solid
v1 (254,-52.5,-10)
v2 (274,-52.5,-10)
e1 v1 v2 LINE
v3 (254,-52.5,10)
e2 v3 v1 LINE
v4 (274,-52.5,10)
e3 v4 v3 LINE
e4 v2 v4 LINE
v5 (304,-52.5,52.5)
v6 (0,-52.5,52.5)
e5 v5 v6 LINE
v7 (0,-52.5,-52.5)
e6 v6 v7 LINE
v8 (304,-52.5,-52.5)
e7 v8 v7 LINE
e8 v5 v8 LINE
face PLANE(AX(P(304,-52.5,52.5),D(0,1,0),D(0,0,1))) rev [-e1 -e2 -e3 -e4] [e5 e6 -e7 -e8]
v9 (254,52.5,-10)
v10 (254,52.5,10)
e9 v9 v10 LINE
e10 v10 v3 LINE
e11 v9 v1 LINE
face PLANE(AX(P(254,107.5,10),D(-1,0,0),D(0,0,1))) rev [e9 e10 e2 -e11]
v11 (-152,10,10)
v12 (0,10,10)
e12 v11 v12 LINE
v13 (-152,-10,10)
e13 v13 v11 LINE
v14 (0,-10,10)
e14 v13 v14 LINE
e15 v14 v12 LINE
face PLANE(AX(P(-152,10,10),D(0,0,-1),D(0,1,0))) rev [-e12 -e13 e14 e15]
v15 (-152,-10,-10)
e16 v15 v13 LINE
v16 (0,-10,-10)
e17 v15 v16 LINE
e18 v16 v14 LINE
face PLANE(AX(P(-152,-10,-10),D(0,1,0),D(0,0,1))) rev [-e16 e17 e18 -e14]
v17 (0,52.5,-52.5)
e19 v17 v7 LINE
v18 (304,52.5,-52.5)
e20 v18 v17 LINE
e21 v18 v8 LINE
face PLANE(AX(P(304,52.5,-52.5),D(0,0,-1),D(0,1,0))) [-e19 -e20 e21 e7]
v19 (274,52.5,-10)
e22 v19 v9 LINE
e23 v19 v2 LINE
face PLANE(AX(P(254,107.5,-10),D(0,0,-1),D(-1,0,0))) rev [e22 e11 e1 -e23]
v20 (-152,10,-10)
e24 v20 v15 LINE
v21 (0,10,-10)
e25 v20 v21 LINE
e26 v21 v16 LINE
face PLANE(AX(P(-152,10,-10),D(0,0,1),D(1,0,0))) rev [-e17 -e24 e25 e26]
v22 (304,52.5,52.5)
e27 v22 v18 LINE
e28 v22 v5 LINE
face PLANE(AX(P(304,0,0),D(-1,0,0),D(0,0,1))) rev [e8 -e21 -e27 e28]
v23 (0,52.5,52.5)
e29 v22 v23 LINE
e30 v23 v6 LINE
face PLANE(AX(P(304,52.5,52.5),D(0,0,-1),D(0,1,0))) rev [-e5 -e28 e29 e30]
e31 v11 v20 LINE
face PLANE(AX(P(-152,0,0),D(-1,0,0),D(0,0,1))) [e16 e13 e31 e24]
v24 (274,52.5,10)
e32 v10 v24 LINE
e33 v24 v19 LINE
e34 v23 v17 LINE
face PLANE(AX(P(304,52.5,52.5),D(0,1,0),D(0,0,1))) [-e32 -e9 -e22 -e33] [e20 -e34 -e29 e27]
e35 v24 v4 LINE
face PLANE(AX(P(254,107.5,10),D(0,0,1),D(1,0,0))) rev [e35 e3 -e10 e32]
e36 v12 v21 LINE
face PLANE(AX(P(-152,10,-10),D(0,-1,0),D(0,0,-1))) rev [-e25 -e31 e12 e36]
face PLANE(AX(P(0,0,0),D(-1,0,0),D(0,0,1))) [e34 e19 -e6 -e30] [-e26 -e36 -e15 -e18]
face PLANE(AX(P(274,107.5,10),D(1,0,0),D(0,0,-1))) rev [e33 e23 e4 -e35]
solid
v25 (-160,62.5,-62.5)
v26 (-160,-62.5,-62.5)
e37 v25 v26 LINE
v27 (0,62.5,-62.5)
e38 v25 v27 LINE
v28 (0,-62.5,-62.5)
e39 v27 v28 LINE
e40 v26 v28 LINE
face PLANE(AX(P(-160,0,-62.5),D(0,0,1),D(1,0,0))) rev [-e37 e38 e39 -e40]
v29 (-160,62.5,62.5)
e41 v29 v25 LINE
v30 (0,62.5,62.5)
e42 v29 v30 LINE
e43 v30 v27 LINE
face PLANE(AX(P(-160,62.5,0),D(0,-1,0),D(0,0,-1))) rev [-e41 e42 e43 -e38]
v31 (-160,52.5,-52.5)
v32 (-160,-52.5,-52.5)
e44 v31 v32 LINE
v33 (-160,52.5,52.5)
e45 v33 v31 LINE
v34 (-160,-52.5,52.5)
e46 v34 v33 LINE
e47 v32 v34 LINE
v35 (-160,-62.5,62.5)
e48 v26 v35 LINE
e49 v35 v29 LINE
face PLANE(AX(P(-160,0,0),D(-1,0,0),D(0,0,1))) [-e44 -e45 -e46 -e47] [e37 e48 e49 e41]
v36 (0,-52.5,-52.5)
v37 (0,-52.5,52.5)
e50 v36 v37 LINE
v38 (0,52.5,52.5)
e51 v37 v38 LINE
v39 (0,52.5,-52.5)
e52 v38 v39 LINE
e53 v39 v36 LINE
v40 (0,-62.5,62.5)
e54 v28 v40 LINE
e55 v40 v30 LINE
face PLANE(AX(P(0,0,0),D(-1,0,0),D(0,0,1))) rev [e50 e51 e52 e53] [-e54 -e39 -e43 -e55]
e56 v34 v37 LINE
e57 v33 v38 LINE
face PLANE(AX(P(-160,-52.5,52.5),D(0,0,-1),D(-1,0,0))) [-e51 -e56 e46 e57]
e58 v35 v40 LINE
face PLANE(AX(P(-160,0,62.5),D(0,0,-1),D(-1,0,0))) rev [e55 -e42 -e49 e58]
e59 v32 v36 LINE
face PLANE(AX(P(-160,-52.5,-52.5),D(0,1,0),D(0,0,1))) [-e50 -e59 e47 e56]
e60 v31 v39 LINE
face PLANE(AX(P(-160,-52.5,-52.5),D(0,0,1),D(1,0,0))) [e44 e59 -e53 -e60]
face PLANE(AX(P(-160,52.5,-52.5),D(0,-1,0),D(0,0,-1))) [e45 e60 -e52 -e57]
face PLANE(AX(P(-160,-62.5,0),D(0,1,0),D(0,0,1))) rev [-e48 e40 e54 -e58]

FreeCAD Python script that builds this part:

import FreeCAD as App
import Part
import Sketcher

V = App.Vector

doc = App.newDocument("Part")
body = doc.addObject("PartDesign::Body", "Body")

sketch1 = doc.addObject("Sketcher::SketchObject", "Sketch")
body.addObject(sketch1)
sketch1.AttachmentSupport = (doc.YZ_Plane, [""])
sketch1.MapMode = "FlatFace"
sketch1.addGeometry(Part.LineSegment(V(52.5, 52.5, 0), V(-52.5, 52.5, 0)), False)
sketch1.addGeometry(Part.LineSegment(V(-52.5, 52.5, 0), V(-52.5, -52.5, 0)), False)
sketch1.addGeometry(Part.LineSegment(V(-52.5, -52.5, 0), V(52.5, -52.5, 0)), False)
sketch1.addGeometry(Part.LineSegment(V(52.5, -52.5, 0), V(52.5, 52.5, 0)), False)
sketch1.addConstraint(Sketcher.Constraint("Coincident", 0, 2, 1, 1))
sketch1.addConstraint(Sketcher.Constraint("Coincident", 1, 2, 2, 1))
sketch1.addConstraint(Sketcher.Constraint("Coincident", 2, 2, 3, 1))
sketch1.addConstraint(Sketcher.Constraint("Coincident", 3, 2, 0, 1))
sketch1.addConstraint(Sketcher.Constraint("Horizontal", 0))
sketch1.addConstraint(Sketcher.Constraint("Vertical", 1))
sketch1.addConstraint(Sketcher.Constraint("Horizontal", 2))
sketch1.addConstraint(Sketcher.Constraint("Vertical", 3))
sketch1.addConstraint(Sketcher.Constraint("Symmetric", 0, 2, 2, 2, -1, 1))
sketch1.addConstraint(Sketcher.Constraint("Equal", 2, 1))
sketch1.addConstraint(Sketcher.Constraint("DistanceX", 0, 2, 0, 1, 105.0))
pad1 = doc.addObject("PartDesign::Pad", "Pad")
body.addObject(pad1)
pad1.Profile = sketch1
pad1.Length = 304

sketch2 = doc.addObject("Sketcher::SketchObject", "Sketch001")
body.addObject(sketch2)
sketch2.AttachmentSupport = (doc.YZ_Plane, [""])
sketch2.MapMode = "FlatFace"
sketch2.addGeometry(Part.LineSegment(V(10, -10, 0), V(-10, -10, 0)), False)
sketch2.addGeometry(Part.LineSegment(V(-10, -10, 0), V(-10, 10, 0)), False)
sketch2.addGeometry(Part.LineSegment(V(-10, 10, 0), V(10, 10, 0)), False)
sketch2.addGeometry(Part.LineSegment(V(10, 10, 0), V(10, -10, 0)), False)
sketch2.addConstraint(Sketcher.Constraint("Coincident", 0, 2, 1, 1))
sketch2.addConstraint(Sketcher.Constraint("Coincident", 1, 2, 2, 1))
sketch2.addConstraint(Sketcher.Constraint("Coincident", 2, 2, 3, 1))
sketch2.addConstraint(Sketcher.Constraint("Coincident", 3, 2, 0, 1))
sketch2.addConstraint(Sketcher.Constraint("Horizontal", 0))
sketch2.addConstraint(Sketcher.Constraint("Vertical", 1))
sketch2.addConstraint(Sketcher.Constraint("Horizontal", 2))
sketch2.addConstraint(Sketcher.Constraint("Vertical", 3))
sketch2.addConstraint(Sketcher.Constraint("Symmetric", 0, 2, 2, 2, -1, 1))
sketch2.addConstraint(Sketcher.Constraint("Equal", 2, 1))
sketch2.addConstraint(Sketcher.Constraint("DistanceX", 0, 2, 0, 1, 20.0))
pad2 = doc.addObject("PartDesign::Pad", "Pad001")
body.addObject(pad2)
pad2.Profile = sketch2
pad2.Length = 152
pad2.Reversed = True

sketch3 = doc.addObject("Sketcher::SketchObject", "Sketch002")
body.addObject(sketch3)
sketch3.AttachmentSupport = (doc.XZ_Plane, [""])
sketch3.MapMode = "FlatFace"
sketch3.AttachmentOffset = App.Placement(V(0, 0, 52.5), App.Rotation())
sketch3.addGeometry(Part.LineSegment(V(254, 10, 0), V(254, -10, 0)), False)
sketch3.addGeometry(Part.LineSegment(V(254, -10, 0), V(274, -10, 0)), False)
sketch3.addGeometry(Part.LineSegment(V(274, -10, 0), V(274, 10, 0)), False)
sketch3.addGeometry(Part.LineSegment(V(274, 10, 0), V(254, 10, 0)), False)
sketch3.addConstraint(Sketcher.Constraint("Coincident", 0, 2, 1, 1))
sketch3.addConstraint(Sketcher.Constraint("Coincident", 1, 2, 2, 1))
sketch3.addConstraint(Sketcher.Constraint("Coincident", 2, 2, 3, 1))
sketch3.addConstraint(Sketcher.Constraint("Coincident", 3, 2, 0, 1))
sketch3.addConstraint(Sketcher.Constraint("Vertical", 0))
sketch3.addConstraint(Sketcher.Constraint("Horizontal", 1))
sketch3.addConstraint(Sketcher.Constraint("Vertical", 2))
sketch3.addConstraint(Sketcher.Constraint("Horizontal", 3))
sketch3.addConstraint(Sketcher.Constraint("Equal", 3, 0))
sketch3.addConstraint(Sketcher.Constraint("DistanceX", 1, 1, 1, 2, 20.0))
sketch3.addConstraint(Sketcher.Constraint("DistanceX", -1, 1, 0, 2, 254.0))
sketch3.addConstraint(Sketcher.Constraint("DistanceY", 0, 2, -1, 1, 10.0))
pocket1 = doc.addObject("PartDesign::Pocket", "Pocket")
body.addObject(pocket1)
pocket1.Profile = sketch3
pocket1.Length = 160
body2 = doc.addObject("PartDesign::Body", "Body001")

sketch4 = doc.addObject("Sketcher::SketchObject", "Sketch003")
body2.addObject(sketch4)
sketch4.AttachmentSupport = (doc.getObject("YZ_Plane001"), [""])
sketch4.MapMode = "FlatFace"
sketch4.addGeometry(Part.LineSegment(V(62.5, -62.5, 0), V(-62.5, -62.5, 0)), False)
sketch4.addGeometry(Part.LineSegment(V(-62.5, -62.5, 0), V(-62.5, 62.5, 0)), False)
sketch4.addGeometry(Part.LineSegment(V(-62.5, 62.5, 0), V(62.5, 62.5, 0)), False)
sketch4.addGeometry(Part.LineSegment(V(62.5, 62.5, 0), V(62.5, -62.5, 0)), False)
sketch4.addGeometry(Part.LineSegment(V(-52.5, 52.5, 0), V(-52.5, -52.5, 0)), False)
sketch4.addGeometry(Part.LineSegment(V(-52.5, -52.5, 0), V(52.5, -52.5, 0)), False)
sketch4.addGeometry(Part.LineSegment(V(52.5, -52.5, 0), V(52.5, 52.5, 0)), False)
sketch4.addGeometry(Part.LineSegment(V(52.5, 52.5, 0), V(-52.5, 52.5, 0)), False)
sketch4.addConstraint(Sketcher.Constraint("Coincident", 0, 2, 1, 1))
sketch4.addConstraint(Sketcher.Constraint("Coincident", 1, 2, 2, 1))
sketch4.addConstraint(Sketcher.Constraint("Coincident", 2, 2, 3, 1))
sketch4.addConstraint(Sketcher.Constraint("Coincident", 3, 2, 0, 1))
sketch4.addConstraint(Sketcher.Constraint("Coincident", 4, 2, 5, 1))
sketch4.addConstraint(Sketcher.Constraint("Coincident", 5, 2, 6, 1))
sketch4.addConstraint(Sketcher.Constraint("Coincident", 6, 2, 7, 1))
sketch4.addConstraint(Sketcher.Constraint("Coincident", 7, 2, 4, 1))
sketch4.addConstraint(Sketcher.Constraint("Horizontal", 0))
sketch4.addConstraint(Sketcher.Constraint("Vertical", 1))
sketch4.addConstraint(Sketcher.Constraint("Horizontal", 2))
sketch4.addConstraint(Sketcher.Constraint("Vertical", 3))
sketch4.addConstraint(Sketcher.Constraint("Vertical", 4))
sketch4.addConstraint(Sketcher.Constraint("Horizontal", 5))
sketch4.addConstraint(Sketcher.Constraint("Vertical", 6))
sketch4.addConstraint(Sketcher.Constraint("Horizontal", 7))
sketch4.addConstraint(Sketcher.Constraint("Symmetric", 0, 2, 2, 2, -1, 1))
sketch4.addConstraint(Sketcher.Constraint("Symmetric", 4, 2, 6, 2, -1, 1))
sketch4.addConstraint(Sketcher.Constraint("Equal", 2, 1))
sketch4.addConstraint(Sketcher.Constraint("Equal", 7, 4))
sketch4.addConstraint(Sketcher.Constraint("DistanceX", 0, 2, 0, 1, 125.0))
sketch4.addConstraint(Sketcher.Constraint("DistanceX", 5, 1, 5, 2, 105.0))
pad3 = doc.addObject("PartDesign::Pad", "Pad002")
body2.addObject(pad3)
pad3.Profile = sketch4
pad3.Length = 160
pad3.Reversed = True

doc.recompute()
